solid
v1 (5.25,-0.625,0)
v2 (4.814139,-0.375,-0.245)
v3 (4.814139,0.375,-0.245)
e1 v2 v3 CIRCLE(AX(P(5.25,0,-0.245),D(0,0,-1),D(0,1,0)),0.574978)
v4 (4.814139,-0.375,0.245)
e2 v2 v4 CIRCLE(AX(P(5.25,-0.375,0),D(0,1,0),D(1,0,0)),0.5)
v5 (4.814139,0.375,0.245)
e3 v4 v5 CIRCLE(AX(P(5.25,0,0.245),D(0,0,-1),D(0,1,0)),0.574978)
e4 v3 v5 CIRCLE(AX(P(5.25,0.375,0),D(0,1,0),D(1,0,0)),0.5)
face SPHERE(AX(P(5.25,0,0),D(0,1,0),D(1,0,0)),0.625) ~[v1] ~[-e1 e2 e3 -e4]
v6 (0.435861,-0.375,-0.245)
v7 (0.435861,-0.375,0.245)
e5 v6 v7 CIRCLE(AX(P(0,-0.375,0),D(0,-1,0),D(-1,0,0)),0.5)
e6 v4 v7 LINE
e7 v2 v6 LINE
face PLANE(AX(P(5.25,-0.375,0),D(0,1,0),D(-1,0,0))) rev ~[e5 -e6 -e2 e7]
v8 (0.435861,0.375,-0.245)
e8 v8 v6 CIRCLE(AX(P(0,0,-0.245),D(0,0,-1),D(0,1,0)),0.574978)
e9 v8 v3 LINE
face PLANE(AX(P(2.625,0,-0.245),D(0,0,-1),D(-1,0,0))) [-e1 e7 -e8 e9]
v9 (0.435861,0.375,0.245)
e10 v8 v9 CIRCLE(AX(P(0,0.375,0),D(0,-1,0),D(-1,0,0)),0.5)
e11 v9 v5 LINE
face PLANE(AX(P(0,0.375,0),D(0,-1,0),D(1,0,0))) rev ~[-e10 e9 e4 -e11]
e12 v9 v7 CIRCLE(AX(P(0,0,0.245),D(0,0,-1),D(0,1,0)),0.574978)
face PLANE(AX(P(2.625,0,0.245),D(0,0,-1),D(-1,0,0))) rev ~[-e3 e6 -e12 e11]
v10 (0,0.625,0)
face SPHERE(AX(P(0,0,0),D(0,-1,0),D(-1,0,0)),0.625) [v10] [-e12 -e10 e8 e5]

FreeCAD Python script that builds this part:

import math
import FreeCAD as App
import Part
import Sketcher
from FreeCAD import Vector

doc = App.newDocument("Part")
body = doc.addObject("PartDesign::Body", "Body")

sketch1 = body.newObject("Sketcher::SketchObject", "Sketch")
sketch1.AttachmentSupport = (doc.getObject("XY_Plane"), [""])
sketch1.MapMode = "FlatFace"
sketch1.addGeometry([
    Part.LineSegment(Vector(5.25, 0.375, 0), Vector(0, 0.375, 0)),
    Part.ArcOfCircle(Part.Circle(Vector(0, 0, 0), Vector(0, 0, 1), 0.375), math.radians(90), math.radians(270)),
    Part.LineSegment(Vector(0, -0.375, 0), Vector(5.25, -0.375, 0)),
    Part.ArcOfCircle(Part.Circle(Vector(5.25, 0, 0), Vector(0, 0, 1), 0.375), math.radians(-90), math.radians(90)),
], False)
sketch1.addConstraint([
    Sketcher.Constraint("Tangent", 0, 2, 1, 1),
    Sketcher.Constraint("Tangent", 1, 2, 2, 1),
    Sketcher.Constraint("Tangent", 2, 2, 3, 1),
    Sketcher.Constraint("Tangent", 3, 2, 0, 1),
    Sketcher.Constraint("Horizontal", 0),
    Sketcher.Constraint("Horizontal", 2),
    Sketcher.Constraint("Coincident", 1, 3, -1, 1),
    Sketcher.Constraint("Radius", 1, 0.375),
    Sketcher.Constraint("DistanceX", 0, 2, 0, 1, 5.25),
])
pad1 = body.newObject("PartDesign::Pad", "Pad")
pad1.Profile = sketch1
pad1.Length = 0.49
pad1.Midplane = True

sketch2 = body.newObject("Sketcher::SketchObject", "Sketch001")
sketch2.AttachmentSupport = (doc.getObject("XY_Plane"), [""])
sketch2.MapMode = "FlatFace"
sketch2.addGeometry([
    Part.LineSegment(Vector(0, -0.625, 0), Vector(0, 0.625, 0)),
    Part.ArcOfCircle(Part.Circle(Vector(0, 0, 0), Vector(0, 0, 1), 0.625), math.radians(90), math.radians(270)),
], False)
sketch2.addConstraint([
    Sketcher.Constraint("Coincident", 0, 1, 1, 2),
    Sketcher.Constraint("Coincident", 1, 1, 0, 2),
    Sketcher.Constraint("Vertical", 0),
    Sketcher.Constraint("Coincident", 1, 3, -1, 1),
    Sketcher.Constraint("PointOnObject", 0, 1, -2),
    Sketcher.Constraint("Radius", 1, 0.625),
])
revolution = body.newObject("PartDesign::Revolution", "Revolution")
revolution.Profile = sketch2
revolution.ReferenceAxis = (sketch2, ["V_Axis"])
revolution.Angle = 360

sketch3 = body.newObject("Sketcher::SketchObject", "Sketch002")
sketch3.AttachmentSupport = (doc.getObject("XY_Plane"), [""])
sketch3.MapMode = "FlatFace"
sketch3.addGeometry([
    Part.ArcOfCircle(Part.Circle(Vector(5.25, 0, 0), Vector(0, 0, 1), 0.625), math.radians(-90), math.radians(90)),
    Part.LineSegment(Vector(5.25, 0.625, 0), Vector(5.25, -0.625, 0)),
], False)
sketch3.addGeometry(Part.LineSegment(Vector(5.25, 0.625, 0), Vector(5.25, -0.625, 0)), True)
sketch3.addConstraint([
    Sketcher.Constraint("Coincident", 0, 1, 1, 2),
    Sketcher.Constraint("Coincident", 1, 1, 0, 2),
    Sketcher.Constraint("Vertical", 1),
    Sketcher.Constraint("Vertical", 2),
    Sketcher.Constraint("Coincident", 2, 1, 1, 1),
    Sketcher.Constraint("PointOnObject", 0, 3, -1),
    Sketcher.Constraint("Equal", 1, 2),
    Sketcher.Constraint("Radius", 0, 0.625),
    Sketcher.Constraint("DistanceX", -1, 1, 0, 3, 5.25),
    Sketcher.Constraint("DistanceX", -1, 1, 0, 1, 5.25),
])
revolution2 = body.newObject("PartDesign::Revolution", "Revolution001")
revolution2.Profile = sketch3
revolution2.ReferenceAxis = (sketch3, ["Axis0"])
revolution2.Angle = 360

doc.recompute()
